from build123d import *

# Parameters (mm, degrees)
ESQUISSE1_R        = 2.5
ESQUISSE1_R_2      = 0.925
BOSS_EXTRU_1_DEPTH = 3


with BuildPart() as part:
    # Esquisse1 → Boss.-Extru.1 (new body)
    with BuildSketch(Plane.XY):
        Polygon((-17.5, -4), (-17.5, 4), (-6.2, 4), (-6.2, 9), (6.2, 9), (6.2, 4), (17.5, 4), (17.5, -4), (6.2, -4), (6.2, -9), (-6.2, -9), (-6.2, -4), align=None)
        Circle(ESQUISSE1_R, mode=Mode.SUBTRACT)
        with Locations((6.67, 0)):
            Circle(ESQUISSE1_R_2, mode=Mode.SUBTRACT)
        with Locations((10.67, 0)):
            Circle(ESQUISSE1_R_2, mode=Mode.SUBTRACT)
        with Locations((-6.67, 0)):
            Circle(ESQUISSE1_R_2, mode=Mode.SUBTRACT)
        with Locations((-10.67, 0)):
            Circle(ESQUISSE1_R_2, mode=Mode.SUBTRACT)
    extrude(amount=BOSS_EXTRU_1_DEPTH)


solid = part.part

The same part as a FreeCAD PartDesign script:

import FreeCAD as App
import Part
import Sketcher

V = App.Vector
Q = App.Units.Quantity


def add_polygon(sketch, points):
    """Adds a closed chain of lines whose ends are joined by coincident constraints."""
    first, n = sketch.GeometryCount, len(points)
    for a, b in zip(points, points[1:] + points[:1]):
        sketch.addGeometry(Part.LineSegment(App.Vector(*a, 0), App.Vector(*b, 0)), False)
    for i in range(n):
        sketch.addConstraint(Sketcher.Constraint("Coincident", first + i, 2, first + (i + 1) % n, 1))

doc = App.newDocument("Part")
params = doc.addObject("Spreadsheet::Sheet", "Params")
for row, (alias, value) in enumerate([
    ("sketch1_diameter", "5 mm"),
    ("sketch1_diameter2", "1.85 mm"),
    ("sketch1_height", "8 mm"),
    ("sketch1_height2", "5 mm"),
    ("sketch1_width", "11.3 mm"),
    ("pad1_length", "3 mm"),
], start=1):
    params.set(f"A{row}", alias)
    params.set(f"B{row}", "=" + value)
    params.setAlias(f"B{row}", alias)

body = doc.addObject("PartDesign::Body", "Body")

# Sketch on XY plane
sketch1 = body.newObject("Sketcher::SketchObject", "Sketch")
sketch1.AttachmentSupport = (doc.getObject("XY_Plane"), [""])
sketch1.MapMode = "FlatFace"
add_polygon(sketch1, [(-17.5, 4), (-17.5, -4), (-6.2, -4), (-6.2, -9), (6.2, -9), (6.2, -4), (17.5, -4), (17.5, 4), (6.2, 4), (6.2, 9), (-6.2, 9), (-6.2, 4)])  # lines 0-11
sketch1.addGeometry(Part.Circle(V(10.7, 0, 0), V(0, 0, 1), 0.9), False)  # 12
sketch1.addGeometry(Part.Circle(V(6.7, 0, 0), V(0, 0, 1), 0.9), False)  # 13
sketch1.addGeometry(Part.Circle(V(0, 0, 0), V(0, 0, 1), 2.5), False)  # 14
sketch1.addGeometry(Part.Circle(V(-6.7, 0, 0), V(0, 0, 1), 0.9), False)  # 15
sketch1.addGeometry(Part.Circle(V(-10.7, 0, 0), V(0, 0, 1), 0.9), False)  # 16
sketch1.addConstraint(Sketcher.Constraint("Vertical", 0))
sketch1.addConstraint(Sketcher.Constraint("Horizontal", 1))
sketch1.addConstraint(Sketcher.Constraint("Vertical", 2))
sketch1.addConstraint(Sketcher.Constraint("Horizontal", 3))
sketch1.addConstraint(Sketcher.Constraint("Vertical", 4))
sketch1.addConstraint(Sketcher.Constraint("Horizontal", 5))
sketch1.addConstraint(Sketcher.Constraint("Vertical", 6))
sketch1.addConstraint(Sketcher.Constraint("Horizontal", 7))
sketch1.addConstraint(Sketcher.Constraint("Vertical", 8))
sketch1.addConstraint(Sketcher.Constraint("Horizontal", 9))
sketch1.addConstraint(Sketcher.Constraint("Vertical", 10))
sketch1.addConstraint(Sketcher.Constraint("Horizontal", 11))
sketch1.addConstraint(Sketcher.Constraint("Coincident", 14, 3, -1, 1))
sketch1.addConstraint(Sketcher.Constraint("Equal", 12, 13))
sketch1.addConstraint(Sketcher.Constraint("Equal", 13, 15))
sketch1.addConstraint(Sketcher.Constraint("Equal", 15, 16))
sketch1.addConstraint(Sketcher.Constraint("Symmetric", 13, 3, 15, 3, -1, 1))
sketch1.addConstraint(Sketcher.Constraint("Symmetric", 12, 3, 16, 3, -1, 1))
sketch1.addConstraint(Sketcher.Constraint("Symmetric", 0, 2, 6, 2, -1, 1))
sketch1.addConstraint(Sketcher.Constraint("Symmetric", 2, 2, 8, 2, -1, 1))
sketch1.addConstraint(Sketcher.Constraint("Symmetric", 4, 2, 10, 2, -1, 1))
sketch1.addConstraint(Sketcher.Constraint("Symmetric", 1, 2, 4, 2, -2))
sketch1.addConstraint(Sketcher.Constraint("PointOnObject", 12, 3, -1))
sketch1.addConstraint(Sketcher.Constraint("PointOnObject", 13, 3, -1))
sketch1.addConstraint(Sketcher.Constraint("Diameter", 14, Q("5 mm")))
sketch1.addConstraint(Sketcher.Constraint("Diameter", 12, Q("1.85 mm")))
sketch1.addConstraint(Sketcher.Constraint("DistanceY", 0, 2, 0, 1, Q("8 mm")))
sketch1.addConstraint(Sketcher.Constraint("DistanceY", 2, 2, 2, 1, Q("5 mm")))
sketch1.addConstraint(Sketcher.Constraint("DistanceX", 1, 1, 1, 2, Q("11.3 mm")))
sketch1.addConstraint(Sketcher.Constraint("DistanceX", 3, 1, 3, 2, Q("12.4 mm")))
sketch1.addConstraint(Sketcher.Constraint("DistanceX", 13, 3, 12, 3, Q("4 mm")))
sketch1.addConstraint(Sketcher.Constraint("DistanceX", -1, 1, 12, 3, Q("10.67 mm")))
sketch1.setExpression("Constraints[36]", "Params.sketch1_diameter")
sketch1.setExpression("Constraints[37]", "Params.sketch1_diameter2")
sketch1.setExpression("Constraints[38]", "Params.sketch1_height")
sketch1.setExpression("Constraints[39]", "Params.sketch1_height2")
sketch1.setExpression("Constraints[40]", "Params.sketch1_width")
pad1 = body.newObject("PartDesign::Pad", "Pad")
pad1.Profile = sketch1
pad1.setExpression("Length", "Params.pad1_length")

doc.recompute()
